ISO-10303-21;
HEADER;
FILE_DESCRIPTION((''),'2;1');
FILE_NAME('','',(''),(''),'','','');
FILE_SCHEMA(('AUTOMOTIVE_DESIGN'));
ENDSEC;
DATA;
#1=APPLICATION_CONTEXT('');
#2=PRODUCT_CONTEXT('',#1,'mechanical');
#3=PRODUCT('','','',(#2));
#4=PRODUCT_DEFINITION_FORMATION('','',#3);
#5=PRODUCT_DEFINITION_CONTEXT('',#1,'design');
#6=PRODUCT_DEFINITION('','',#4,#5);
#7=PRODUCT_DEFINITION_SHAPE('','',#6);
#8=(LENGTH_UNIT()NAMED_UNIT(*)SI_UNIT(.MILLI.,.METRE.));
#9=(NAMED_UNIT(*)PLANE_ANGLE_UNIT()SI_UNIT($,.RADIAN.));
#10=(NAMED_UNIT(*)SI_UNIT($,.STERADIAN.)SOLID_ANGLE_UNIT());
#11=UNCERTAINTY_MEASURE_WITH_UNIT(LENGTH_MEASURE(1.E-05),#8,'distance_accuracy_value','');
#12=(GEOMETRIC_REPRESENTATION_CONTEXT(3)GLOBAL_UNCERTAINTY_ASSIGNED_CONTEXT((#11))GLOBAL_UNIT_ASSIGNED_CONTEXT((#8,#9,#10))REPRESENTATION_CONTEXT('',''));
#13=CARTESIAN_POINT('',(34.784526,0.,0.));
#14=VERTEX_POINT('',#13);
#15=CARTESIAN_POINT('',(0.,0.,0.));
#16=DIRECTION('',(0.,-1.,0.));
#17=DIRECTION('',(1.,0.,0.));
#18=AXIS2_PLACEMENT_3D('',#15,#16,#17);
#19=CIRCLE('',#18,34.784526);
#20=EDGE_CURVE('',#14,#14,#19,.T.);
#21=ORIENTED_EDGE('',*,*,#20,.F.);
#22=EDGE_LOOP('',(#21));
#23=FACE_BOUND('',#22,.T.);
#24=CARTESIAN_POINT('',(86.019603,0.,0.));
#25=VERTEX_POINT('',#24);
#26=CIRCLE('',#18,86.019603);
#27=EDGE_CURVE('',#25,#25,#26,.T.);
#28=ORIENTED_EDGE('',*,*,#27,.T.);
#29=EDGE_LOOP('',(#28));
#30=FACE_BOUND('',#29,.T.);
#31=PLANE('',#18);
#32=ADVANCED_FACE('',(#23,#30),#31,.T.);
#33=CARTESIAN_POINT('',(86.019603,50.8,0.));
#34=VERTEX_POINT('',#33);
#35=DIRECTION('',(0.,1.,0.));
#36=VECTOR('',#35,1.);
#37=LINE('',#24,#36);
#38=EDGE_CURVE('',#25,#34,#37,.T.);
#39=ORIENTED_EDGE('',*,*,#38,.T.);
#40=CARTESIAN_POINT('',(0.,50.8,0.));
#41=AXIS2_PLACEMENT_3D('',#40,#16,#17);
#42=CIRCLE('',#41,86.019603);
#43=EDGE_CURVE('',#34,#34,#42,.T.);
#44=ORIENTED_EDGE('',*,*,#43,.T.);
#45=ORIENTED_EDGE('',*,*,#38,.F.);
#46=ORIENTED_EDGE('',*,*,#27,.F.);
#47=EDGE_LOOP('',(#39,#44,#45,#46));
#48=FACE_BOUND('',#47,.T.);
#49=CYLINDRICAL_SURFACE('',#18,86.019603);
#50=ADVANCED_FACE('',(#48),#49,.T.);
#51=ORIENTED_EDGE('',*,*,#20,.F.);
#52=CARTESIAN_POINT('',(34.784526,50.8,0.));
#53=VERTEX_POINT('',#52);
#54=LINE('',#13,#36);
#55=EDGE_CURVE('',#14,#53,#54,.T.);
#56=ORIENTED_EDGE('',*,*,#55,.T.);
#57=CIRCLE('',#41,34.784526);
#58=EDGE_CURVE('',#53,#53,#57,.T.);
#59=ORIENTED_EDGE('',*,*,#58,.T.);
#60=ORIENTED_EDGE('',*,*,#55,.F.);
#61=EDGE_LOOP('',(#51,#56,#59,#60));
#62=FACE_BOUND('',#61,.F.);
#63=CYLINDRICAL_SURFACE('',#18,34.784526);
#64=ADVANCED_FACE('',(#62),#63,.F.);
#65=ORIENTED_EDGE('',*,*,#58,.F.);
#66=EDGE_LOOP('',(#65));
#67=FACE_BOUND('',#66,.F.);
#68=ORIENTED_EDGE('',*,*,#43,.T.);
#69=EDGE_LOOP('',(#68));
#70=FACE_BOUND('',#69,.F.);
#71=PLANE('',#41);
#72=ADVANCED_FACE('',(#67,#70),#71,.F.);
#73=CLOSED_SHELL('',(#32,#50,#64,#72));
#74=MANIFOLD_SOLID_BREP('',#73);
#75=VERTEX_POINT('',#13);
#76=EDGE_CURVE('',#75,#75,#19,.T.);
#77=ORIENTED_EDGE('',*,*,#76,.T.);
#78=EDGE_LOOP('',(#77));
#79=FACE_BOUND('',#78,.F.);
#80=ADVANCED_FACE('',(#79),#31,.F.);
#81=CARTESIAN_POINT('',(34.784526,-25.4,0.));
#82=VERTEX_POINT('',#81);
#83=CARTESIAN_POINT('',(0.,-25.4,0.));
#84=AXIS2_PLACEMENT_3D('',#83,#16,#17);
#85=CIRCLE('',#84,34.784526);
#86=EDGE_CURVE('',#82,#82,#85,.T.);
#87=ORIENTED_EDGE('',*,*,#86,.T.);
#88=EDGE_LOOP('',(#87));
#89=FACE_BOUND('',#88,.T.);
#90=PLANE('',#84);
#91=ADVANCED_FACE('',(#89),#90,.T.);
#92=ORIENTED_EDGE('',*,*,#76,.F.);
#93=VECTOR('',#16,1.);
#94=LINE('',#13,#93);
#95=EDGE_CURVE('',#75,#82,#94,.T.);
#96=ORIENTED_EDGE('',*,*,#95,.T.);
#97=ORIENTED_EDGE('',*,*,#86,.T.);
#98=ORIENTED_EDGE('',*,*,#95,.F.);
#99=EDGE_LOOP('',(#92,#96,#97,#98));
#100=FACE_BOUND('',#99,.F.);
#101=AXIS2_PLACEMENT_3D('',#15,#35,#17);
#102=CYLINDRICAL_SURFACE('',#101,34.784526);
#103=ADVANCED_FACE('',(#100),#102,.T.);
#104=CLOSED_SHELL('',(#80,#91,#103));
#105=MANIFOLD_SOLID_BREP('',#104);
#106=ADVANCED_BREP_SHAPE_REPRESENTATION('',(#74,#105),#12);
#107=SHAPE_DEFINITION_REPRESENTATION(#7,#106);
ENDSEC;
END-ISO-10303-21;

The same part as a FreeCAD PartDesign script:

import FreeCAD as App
import Part
import Sketcher
from FreeCAD import Vector
Q = App.Units.Quantity

doc = App.newDocument("Part")
body = doc.addObject("PartDesign::Body", "Body")
body.AllowCompound = True

# Sketch on XZ plane
sketch1 = body.newObject("Sketcher::SketchObject", "Sketch")
sketch1.AttachmentSupport = (doc.getObject("XZ_Plane"), [""])
sketch1.MapMode = "FlatFace"
sketch1.addGeometry(Part.Circle(Vector(0, 0, 0), Vector(0, 0, 1), 35), False)
sketch1.addConstraint([
    Sketcher.Constraint("Coincident", 0, 3, -1, 1),
    Sketcher.Constraint("Diameter", 0, 69.569052),
])
pad1 = body.newObject("PartDesign::Pad", "Pad")
pad1.Profile = sketch1
pad1.Length = Q("1 in")

# Sketch on XZ plane
sketch2 = body.newObject("Sketcher::SketchObject", "Sketch001")
sketch2.AttachmentSupport = (doc.getObject("XZ_Plane"), [""])
sketch2.MapMode = "FlatFace"
sketch2.addGeometry([
    Part.Circle(Vector(0, 0, 0), Vector(0, 0, 1), 86),
    Part.Circle(Vector(0, 0, 0), Vector(0, 0, 1), 35),
], False)
sketch2.addConstraint([
    Sketcher.Constraint("Coincident", 0, 3, -1, 1),
    Sketcher.Constraint("Coincident", 1, 3, -1, 1),
    Sketcher.Constraint("Diameter", 1, 69.569052),
    Sketcher.Constraint("Diameter", 0, 172.039206),
])
pad2 = body.newObject("PartDesign::Pad", "Pad001")
pad2.Profile = sketch2
pad2.Length = Q("2 in")
pad2.Reversed = True

doc.recompute()
